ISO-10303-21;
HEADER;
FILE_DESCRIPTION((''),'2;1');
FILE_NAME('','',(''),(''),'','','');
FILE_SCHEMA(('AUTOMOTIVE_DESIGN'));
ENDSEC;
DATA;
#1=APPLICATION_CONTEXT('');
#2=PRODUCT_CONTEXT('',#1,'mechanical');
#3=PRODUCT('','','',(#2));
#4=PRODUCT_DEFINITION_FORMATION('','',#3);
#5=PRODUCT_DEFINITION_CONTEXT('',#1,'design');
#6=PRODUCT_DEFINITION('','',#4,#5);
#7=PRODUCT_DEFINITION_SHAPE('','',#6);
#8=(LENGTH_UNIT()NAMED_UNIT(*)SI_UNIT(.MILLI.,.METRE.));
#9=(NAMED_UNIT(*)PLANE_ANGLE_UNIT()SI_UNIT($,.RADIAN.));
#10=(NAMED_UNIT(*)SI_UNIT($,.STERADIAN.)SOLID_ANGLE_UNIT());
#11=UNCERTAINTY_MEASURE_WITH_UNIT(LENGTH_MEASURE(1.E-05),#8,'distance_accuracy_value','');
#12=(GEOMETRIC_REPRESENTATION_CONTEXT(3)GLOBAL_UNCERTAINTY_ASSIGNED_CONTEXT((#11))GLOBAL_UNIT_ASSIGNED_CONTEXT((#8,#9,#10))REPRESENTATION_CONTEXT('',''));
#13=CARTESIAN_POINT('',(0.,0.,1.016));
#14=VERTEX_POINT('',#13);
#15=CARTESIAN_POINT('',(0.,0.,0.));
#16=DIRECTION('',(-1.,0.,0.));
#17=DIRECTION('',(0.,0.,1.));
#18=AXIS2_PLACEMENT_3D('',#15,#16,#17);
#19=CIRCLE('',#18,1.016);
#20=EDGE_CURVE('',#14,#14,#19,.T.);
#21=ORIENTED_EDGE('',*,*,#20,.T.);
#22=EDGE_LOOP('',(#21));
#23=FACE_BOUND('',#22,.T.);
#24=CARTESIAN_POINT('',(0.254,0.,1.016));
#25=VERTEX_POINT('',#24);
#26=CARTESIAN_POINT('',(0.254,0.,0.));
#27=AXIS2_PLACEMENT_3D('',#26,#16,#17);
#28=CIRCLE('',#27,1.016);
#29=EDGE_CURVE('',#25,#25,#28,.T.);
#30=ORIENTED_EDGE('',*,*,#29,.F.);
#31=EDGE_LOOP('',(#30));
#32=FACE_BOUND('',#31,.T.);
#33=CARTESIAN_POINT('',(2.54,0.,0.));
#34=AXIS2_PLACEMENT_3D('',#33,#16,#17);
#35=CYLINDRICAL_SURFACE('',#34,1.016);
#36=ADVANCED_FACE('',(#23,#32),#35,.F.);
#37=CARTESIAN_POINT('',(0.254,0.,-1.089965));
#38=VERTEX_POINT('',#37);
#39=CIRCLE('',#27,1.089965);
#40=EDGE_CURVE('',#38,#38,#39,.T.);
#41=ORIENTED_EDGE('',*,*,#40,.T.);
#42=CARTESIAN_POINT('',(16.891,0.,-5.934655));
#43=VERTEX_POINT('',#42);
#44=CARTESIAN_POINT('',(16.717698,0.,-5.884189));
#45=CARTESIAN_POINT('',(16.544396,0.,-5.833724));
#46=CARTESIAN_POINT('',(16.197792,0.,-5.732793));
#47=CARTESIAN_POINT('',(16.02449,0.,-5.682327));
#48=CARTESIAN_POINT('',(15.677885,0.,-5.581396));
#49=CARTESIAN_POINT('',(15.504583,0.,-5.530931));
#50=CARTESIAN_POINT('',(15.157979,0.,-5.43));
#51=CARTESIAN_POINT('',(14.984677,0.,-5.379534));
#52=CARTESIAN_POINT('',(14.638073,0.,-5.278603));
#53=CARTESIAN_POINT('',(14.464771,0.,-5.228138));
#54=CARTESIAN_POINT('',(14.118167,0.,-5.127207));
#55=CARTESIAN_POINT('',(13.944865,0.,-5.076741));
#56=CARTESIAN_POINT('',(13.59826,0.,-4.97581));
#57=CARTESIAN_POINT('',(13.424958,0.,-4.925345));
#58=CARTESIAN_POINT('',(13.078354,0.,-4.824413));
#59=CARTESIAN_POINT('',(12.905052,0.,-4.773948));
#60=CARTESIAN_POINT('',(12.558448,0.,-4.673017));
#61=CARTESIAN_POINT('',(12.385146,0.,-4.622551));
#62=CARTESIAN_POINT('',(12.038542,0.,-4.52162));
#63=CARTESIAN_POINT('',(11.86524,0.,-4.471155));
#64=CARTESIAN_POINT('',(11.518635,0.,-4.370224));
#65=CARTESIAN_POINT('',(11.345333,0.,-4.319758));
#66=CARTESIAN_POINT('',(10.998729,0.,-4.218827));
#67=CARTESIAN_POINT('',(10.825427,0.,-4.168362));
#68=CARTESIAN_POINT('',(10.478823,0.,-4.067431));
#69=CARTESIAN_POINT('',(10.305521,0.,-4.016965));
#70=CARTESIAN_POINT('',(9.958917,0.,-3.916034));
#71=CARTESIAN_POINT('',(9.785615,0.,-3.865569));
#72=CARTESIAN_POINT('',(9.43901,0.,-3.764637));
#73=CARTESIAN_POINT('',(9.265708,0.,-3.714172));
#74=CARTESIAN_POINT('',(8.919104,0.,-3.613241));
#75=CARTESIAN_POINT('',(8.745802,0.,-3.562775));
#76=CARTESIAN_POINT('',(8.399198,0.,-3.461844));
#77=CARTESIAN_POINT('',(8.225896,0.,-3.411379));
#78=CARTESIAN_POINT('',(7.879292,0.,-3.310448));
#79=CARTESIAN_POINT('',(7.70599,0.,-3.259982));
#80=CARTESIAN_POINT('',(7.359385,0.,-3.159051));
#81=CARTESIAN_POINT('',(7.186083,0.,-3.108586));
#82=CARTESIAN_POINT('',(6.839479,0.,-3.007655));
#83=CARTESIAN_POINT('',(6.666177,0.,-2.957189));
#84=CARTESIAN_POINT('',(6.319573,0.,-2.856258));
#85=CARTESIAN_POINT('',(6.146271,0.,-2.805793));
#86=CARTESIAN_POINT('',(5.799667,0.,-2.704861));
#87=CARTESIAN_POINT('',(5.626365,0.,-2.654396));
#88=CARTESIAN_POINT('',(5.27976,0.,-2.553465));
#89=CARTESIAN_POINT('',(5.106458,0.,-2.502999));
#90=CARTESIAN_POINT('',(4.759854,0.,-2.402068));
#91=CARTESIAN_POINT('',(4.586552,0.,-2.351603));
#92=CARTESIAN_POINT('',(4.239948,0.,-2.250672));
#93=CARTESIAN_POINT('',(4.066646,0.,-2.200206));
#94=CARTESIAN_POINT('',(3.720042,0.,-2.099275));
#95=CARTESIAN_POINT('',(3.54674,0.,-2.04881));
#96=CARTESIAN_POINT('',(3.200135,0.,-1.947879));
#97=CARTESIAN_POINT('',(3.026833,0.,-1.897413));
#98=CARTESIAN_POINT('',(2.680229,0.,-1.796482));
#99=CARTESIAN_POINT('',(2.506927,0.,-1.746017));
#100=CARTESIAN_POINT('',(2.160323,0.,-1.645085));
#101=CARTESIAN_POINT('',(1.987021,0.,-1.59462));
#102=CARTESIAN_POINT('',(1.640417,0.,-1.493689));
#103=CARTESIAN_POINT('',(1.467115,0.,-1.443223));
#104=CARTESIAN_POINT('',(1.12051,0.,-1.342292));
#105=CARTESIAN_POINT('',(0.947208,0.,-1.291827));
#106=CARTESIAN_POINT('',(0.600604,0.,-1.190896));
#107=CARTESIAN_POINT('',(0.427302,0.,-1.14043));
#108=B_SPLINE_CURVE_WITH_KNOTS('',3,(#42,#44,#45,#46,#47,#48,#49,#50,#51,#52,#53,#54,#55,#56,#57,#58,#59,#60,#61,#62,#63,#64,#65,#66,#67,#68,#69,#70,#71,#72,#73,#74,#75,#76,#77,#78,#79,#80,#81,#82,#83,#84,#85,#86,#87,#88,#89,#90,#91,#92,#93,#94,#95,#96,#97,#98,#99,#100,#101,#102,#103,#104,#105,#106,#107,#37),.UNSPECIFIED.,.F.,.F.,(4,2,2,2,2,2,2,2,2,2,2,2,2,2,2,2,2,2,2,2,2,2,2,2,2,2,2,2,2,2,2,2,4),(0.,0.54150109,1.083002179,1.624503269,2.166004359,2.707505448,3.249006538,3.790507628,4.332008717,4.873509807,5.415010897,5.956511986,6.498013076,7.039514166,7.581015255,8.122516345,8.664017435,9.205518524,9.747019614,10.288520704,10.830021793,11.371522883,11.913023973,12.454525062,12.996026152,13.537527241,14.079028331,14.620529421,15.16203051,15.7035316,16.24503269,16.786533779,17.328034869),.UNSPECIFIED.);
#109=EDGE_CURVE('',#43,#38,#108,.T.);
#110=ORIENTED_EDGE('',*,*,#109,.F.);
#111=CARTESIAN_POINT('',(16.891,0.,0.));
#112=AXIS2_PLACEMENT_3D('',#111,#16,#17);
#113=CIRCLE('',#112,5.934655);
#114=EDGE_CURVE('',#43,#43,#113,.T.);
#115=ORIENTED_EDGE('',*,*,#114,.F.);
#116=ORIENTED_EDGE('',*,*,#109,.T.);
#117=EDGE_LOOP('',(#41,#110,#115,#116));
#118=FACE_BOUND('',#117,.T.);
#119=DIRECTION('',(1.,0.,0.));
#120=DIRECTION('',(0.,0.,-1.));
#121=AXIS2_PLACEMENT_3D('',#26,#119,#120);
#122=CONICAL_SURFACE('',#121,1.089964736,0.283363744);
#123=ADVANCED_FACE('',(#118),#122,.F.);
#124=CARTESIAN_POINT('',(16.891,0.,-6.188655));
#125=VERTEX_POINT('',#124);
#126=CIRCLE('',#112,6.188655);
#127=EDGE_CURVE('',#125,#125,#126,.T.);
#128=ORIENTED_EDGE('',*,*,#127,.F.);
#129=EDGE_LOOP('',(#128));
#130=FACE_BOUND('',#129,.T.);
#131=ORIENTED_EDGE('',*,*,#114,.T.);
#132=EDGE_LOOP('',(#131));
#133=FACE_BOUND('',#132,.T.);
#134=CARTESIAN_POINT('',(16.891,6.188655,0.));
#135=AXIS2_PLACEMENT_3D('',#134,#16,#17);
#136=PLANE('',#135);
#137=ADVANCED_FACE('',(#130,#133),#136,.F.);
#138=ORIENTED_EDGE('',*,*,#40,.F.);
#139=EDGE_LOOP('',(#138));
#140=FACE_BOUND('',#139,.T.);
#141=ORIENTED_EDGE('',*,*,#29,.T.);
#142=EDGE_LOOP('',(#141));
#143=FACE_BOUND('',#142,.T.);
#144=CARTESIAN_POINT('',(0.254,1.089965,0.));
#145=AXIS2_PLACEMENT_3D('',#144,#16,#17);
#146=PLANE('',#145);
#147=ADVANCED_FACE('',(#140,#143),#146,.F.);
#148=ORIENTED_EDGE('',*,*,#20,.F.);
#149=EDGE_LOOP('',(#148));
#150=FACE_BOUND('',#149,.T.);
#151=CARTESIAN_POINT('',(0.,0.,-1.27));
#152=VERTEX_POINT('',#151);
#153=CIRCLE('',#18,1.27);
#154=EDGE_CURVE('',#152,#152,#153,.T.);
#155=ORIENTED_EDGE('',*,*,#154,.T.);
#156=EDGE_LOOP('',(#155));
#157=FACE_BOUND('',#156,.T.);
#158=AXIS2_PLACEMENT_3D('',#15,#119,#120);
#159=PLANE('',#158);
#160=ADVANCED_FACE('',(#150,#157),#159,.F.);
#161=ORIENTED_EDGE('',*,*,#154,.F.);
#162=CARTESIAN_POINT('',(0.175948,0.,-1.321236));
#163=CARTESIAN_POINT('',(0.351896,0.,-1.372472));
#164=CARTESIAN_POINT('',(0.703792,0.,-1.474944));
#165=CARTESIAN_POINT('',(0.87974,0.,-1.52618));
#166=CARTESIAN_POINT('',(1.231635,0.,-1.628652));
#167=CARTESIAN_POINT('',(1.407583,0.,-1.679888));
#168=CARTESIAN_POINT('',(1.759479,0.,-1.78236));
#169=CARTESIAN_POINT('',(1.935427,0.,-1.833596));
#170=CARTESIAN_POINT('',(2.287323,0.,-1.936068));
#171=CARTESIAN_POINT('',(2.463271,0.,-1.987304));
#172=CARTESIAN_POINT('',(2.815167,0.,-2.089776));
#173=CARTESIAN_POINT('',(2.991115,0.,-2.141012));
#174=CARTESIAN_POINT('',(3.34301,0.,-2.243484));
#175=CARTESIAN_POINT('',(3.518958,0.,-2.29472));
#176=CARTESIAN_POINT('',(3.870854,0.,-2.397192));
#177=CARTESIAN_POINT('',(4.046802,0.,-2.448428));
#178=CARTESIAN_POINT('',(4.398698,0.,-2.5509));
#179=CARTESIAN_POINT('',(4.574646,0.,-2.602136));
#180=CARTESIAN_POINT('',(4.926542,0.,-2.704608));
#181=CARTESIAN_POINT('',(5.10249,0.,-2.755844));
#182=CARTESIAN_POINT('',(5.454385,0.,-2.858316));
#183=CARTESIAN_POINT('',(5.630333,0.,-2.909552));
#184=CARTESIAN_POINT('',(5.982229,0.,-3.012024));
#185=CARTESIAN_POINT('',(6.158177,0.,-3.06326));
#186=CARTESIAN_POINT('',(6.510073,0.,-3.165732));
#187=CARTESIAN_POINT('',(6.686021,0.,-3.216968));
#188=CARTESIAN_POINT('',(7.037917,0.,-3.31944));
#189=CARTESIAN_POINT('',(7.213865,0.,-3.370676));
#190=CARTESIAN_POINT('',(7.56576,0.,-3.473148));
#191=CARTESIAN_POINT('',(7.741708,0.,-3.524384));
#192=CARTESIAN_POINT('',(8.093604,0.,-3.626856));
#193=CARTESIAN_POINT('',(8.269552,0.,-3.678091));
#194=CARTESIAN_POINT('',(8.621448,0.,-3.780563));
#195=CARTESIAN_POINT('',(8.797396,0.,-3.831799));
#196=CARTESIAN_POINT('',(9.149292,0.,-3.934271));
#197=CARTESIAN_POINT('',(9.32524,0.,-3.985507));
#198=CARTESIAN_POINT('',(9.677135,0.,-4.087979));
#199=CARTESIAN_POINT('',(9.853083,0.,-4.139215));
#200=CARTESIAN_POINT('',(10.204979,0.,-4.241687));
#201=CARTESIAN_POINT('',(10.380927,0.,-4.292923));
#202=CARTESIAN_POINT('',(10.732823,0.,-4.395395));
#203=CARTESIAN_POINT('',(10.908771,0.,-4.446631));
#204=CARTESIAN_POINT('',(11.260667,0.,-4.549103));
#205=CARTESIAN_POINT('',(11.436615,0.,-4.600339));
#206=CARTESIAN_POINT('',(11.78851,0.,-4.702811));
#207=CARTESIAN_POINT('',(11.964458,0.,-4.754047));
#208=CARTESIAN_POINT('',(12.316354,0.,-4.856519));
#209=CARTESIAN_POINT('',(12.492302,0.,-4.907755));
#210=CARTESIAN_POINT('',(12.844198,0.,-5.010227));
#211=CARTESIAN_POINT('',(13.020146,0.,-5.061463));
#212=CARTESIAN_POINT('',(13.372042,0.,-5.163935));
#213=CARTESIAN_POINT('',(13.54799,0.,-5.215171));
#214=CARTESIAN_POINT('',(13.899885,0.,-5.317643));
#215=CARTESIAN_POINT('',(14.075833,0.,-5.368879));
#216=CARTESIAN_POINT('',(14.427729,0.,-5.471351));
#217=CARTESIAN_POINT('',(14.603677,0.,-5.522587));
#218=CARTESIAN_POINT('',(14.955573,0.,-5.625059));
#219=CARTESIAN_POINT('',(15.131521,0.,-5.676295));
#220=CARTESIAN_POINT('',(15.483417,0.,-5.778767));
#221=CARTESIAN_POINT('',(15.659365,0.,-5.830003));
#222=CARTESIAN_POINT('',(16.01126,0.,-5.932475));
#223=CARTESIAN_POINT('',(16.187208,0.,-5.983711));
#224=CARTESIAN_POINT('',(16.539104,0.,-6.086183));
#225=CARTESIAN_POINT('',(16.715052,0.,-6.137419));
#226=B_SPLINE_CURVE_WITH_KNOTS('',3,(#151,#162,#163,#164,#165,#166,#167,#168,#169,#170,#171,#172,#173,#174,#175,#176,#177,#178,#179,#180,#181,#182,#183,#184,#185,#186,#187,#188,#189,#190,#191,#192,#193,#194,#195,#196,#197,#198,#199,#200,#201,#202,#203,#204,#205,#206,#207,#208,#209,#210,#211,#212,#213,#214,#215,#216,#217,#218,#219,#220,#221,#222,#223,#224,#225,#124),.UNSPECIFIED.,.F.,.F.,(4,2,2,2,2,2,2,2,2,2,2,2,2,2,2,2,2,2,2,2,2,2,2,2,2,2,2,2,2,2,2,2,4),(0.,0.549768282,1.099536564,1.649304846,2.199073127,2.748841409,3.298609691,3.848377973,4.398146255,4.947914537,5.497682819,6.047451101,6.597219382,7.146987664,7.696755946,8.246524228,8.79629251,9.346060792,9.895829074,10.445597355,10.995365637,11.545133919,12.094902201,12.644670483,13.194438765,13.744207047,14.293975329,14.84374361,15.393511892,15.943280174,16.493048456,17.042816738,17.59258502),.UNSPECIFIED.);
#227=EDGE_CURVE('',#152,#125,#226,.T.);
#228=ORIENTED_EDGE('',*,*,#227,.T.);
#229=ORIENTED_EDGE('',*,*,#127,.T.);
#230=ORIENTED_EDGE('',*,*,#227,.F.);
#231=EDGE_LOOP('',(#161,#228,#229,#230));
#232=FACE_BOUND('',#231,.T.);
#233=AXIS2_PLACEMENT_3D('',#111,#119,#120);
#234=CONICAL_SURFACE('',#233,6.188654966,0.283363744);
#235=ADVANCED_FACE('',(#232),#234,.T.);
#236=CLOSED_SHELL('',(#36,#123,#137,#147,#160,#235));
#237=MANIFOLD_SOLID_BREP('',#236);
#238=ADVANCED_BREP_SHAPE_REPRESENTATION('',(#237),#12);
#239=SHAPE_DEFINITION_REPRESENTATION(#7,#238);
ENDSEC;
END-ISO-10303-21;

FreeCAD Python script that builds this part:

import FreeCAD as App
import Part
import Sketcher
from FreeCAD import Vector
Q = App.Units.Quantity


def add_polygon(sketch, points):
    """Adds a closed chain of lines whose ends are joined by coincident constraints."""
    first, n = sketch.GeometryCount, len(points)
    for a, b in zip(points, points[1:] + points[:1]):
        sketch.addGeometry(Part.LineSegment(App.Vector(*a, 0), App.Vector(*b, 0)), False)
    for i in range(n):
        sketch.addConstraint(Sketcher.Constraint("Coincident", first + i, 2, first + (i + 1) % n, 1))

doc = App.newDocument("Part")
body = doc.addObject("PartDesign::Body", "Body")

# Sketch on XY plane
sketch1 = doc.addObject("Sketcher::SketchObject", "Sketch")
body.addObject(sketch1)
sketch1.AttachmentSupport = (doc.XY_Plane, [""])
sketch1.MapMode = "FlatFace"
add_polygon(sketch1, [(0, 1.27), (0, 0), (0.254, 0), (0.254, 1.089965), (16.891, 5.934655), (16.891, 6.188655)])  # lines 0-5
sketch1.addConstraint(Sketcher.Constraint("Vertical", 0))
sketch1.addConstraint(Sketcher.Constraint("Horizontal", 1))
sketch1.addConstraint(Sketcher.Constraint("Vertical", 2))
sketch1.addConstraint(Sketcher.Constraint("Vertical", 4))
sketch1.addConstraint(Sketcher.Constraint("Coincident", 0, 2, -1, 1))
sketch1.addConstraint(Sketcher.Constraint("Parallel", 3, 5))
sketch1.addConstraint(Sketcher.Constraint("Equal", 1, 4))
sketch1.addConstraint(Sketcher.Constraint("DistanceX", 1, 1, 1, 2, Q("0.01 in")))
sketch1.addConstraint(Sketcher.Constraint("DistanceY", 0, 2, 0, 1, Q("0.05 in")))
sketch1.addConstraint(Sketcher.Constraint("DistanceX", -1, 1, 3, 2, Q("0.665 in")))
sketch1.addConstraint(Sketcher.Constraint("DistanceY", 2, 1, 2, 2, 1.089965))
revolution = doc.addObject("PartDesign::Revolution", "Revolution")
body.addObject(revolution)
revolution.Profile = sketch1
revolution.ReferenceAxis = (sketch1, ["H_Axis"])
revolution.Angle = 360

# Sketch on YZ plane
sketch2 = doc.addObject("Sketcher::SketchObject", "Sketch001")
body.addObject(sketch2)
sketch2.AttachmentSupport = (doc.YZ_Plane, [""])
sketch2.MapMode = "FlatFace"
sketch2.addGeometry(Part.Circle(Vector(0, 0, 0), Vector(0, 0, 1), 1.016), False)
sketch2.addConstraint(Sketcher.Constraint("Coincident", 0, 3, -1, 1))
sketch2.addConstraint(Sketcher.Constraint("Diameter", 0, Q("0.08 in")))
pocket1 = doc.addObject("PartDesign::Pocket", "Pocket")
body.addObject(pocket1)
pocket1.Profile = sketch2
pocket1.Length = Q("0.1 in")
pocket1.Reversed = True

doc.recompute()
